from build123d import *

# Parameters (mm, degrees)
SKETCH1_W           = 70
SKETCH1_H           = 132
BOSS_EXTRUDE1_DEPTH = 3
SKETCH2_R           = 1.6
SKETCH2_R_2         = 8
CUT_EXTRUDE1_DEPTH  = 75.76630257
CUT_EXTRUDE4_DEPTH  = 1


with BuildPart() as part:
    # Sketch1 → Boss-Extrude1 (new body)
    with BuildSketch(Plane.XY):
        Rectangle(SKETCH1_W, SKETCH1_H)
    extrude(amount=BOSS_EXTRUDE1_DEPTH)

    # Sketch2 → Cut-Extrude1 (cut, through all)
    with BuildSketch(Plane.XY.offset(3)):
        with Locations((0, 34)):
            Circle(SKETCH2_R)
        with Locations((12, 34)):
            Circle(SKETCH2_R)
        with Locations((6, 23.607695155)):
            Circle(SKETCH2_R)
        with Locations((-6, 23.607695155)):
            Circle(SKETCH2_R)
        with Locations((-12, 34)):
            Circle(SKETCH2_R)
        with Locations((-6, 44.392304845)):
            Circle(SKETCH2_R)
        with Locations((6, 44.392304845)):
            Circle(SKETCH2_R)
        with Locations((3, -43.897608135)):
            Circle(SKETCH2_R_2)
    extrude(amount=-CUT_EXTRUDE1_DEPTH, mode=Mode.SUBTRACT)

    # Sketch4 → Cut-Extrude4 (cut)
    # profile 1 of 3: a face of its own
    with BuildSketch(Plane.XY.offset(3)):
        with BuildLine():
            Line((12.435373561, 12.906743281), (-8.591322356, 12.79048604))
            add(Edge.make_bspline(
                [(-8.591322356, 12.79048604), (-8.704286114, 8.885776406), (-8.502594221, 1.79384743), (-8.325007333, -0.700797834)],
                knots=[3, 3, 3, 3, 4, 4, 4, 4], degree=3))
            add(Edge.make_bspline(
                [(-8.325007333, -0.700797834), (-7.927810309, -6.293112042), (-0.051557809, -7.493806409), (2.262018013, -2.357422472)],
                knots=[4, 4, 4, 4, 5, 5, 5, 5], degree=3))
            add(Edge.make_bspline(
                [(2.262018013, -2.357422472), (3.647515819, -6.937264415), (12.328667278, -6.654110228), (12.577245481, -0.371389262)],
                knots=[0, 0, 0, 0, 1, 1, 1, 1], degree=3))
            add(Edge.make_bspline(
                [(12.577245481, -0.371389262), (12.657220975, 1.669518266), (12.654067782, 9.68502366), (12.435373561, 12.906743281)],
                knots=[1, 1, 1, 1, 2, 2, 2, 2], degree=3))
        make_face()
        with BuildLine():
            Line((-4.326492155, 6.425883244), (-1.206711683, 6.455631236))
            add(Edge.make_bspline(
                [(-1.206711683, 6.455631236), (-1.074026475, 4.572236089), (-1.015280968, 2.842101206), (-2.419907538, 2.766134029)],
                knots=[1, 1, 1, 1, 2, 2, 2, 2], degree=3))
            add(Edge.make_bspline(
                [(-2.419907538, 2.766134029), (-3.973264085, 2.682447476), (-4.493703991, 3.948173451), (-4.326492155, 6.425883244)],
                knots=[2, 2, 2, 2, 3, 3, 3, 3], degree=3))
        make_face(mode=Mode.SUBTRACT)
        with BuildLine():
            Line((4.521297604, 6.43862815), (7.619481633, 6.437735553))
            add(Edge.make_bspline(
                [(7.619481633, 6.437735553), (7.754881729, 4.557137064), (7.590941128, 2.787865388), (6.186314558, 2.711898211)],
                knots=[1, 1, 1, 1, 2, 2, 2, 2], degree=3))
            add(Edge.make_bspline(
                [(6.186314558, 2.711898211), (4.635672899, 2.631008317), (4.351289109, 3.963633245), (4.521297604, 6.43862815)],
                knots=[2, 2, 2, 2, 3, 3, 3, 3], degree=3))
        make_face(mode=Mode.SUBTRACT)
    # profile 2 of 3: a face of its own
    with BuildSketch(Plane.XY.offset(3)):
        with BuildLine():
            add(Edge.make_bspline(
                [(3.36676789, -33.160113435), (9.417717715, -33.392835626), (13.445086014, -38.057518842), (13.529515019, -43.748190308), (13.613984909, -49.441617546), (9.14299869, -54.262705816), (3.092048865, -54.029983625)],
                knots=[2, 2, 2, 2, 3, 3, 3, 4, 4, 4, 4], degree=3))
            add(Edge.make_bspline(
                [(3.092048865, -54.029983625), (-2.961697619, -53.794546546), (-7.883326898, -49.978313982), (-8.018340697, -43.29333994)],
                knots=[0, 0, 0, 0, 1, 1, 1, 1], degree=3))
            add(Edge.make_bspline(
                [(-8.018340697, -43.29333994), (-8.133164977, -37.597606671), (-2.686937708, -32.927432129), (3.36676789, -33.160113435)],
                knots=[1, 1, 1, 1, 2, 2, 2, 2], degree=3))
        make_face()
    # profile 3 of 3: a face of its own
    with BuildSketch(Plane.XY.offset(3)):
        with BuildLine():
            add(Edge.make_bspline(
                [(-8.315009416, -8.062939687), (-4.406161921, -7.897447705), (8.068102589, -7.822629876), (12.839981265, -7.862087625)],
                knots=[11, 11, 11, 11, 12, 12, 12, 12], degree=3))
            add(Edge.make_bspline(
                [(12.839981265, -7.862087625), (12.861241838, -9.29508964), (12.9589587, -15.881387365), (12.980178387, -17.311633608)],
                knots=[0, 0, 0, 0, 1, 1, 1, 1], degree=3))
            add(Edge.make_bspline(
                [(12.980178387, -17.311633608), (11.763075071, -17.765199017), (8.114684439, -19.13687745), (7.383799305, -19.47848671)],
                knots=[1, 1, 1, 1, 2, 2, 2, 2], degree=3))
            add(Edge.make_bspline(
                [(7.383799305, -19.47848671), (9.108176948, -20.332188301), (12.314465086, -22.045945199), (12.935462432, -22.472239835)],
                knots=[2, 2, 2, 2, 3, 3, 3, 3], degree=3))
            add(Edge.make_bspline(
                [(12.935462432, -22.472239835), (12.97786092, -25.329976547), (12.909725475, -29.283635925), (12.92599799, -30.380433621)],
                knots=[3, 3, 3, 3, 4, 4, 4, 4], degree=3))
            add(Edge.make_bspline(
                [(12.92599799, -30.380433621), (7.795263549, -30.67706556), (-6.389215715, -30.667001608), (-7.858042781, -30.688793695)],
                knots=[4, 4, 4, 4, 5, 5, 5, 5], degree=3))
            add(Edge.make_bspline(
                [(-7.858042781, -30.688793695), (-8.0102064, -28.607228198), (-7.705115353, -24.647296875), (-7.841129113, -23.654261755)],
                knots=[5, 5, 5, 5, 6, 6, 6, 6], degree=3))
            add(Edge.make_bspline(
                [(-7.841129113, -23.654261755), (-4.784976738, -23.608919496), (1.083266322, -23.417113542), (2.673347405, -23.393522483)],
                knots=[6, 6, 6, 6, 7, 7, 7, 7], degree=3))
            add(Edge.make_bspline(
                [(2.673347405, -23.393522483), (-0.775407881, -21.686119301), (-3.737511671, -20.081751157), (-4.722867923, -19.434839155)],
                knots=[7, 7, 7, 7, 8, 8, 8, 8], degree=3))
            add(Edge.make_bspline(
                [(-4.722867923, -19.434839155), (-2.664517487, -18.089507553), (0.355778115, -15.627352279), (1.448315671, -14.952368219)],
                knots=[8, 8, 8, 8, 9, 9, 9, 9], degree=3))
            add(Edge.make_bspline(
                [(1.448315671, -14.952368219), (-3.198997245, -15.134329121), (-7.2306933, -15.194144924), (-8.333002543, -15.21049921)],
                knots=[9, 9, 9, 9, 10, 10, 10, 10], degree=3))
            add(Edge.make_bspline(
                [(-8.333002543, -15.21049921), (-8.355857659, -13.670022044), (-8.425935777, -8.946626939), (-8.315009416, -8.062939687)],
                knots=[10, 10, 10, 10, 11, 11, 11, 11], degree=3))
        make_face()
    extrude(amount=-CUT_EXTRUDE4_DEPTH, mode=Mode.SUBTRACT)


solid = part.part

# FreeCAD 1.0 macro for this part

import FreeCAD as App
import Part
import Sketcher

V = App.Vector
Q = App.Units.Quantity

doc = App.newDocument("Part")
params = doc.addObject("Spreadsheet::Sheet", "Params")
for row, (alias, value) in enumerate([
    ("sketch1_width", "70 mm"),
    ("sketch1_height", "132 mm"),
    ("pad1_length", "3 mm"),
    ("sketch2_diameter", "16 mm"),
    ("sketch2_diameter2", "3.2 mm"),
    ("pocket2_length", "1 mm"),
], start=1):
    params.set(f"A{row}", alias)
    params.set(f"B{row}", "=" + value)
    params.setAlias(f"B{row}", alias)

body = doc.addObject("PartDesign::Body", "Body")

sketch1 = body.newObject("Sketcher::SketchObject", "Sketch")
sketch1.AttachmentSupport = (doc.getObject("XY_Plane"), [""])
sketch1.MapMode = "FlatFace"
sketch1.addGeometry(Part.LineSegment(V(-35, 66, 0), V(-35, -66, 0)), False)
sketch1.addGeometry(Part.LineSegment(V(-35, -66, 0), V(35, -66, 0)), False)
sketch1.addGeometry(Part.LineSegment(V(35, -66, 0), V(35, 66, 0)), False)
sketch1.addGeometry(Part.LineSegment(V(35, 66, 0), V(-35, 66, 0)), False)
sketch1.addConstraint(Sketcher.Constraint("Coincident", 0, 2, 1, 1))
sketch1.addConstraint(Sketcher.Constraint("Coincident", 1, 2, 2, 1))
sketch1.addConstraint(Sketcher.Constraint("Coincident", 2, 2, 3, 1))
sketch1.addConstraint(Sketcher.Constraint("Coincident", 3, 2, 0, 1))
sketch1.addConstraint(Sketcher.Constraint("Vertical", 0))
sketch1.addConstraint(Sketcher.Constraint("Horizontal", 1))
sketch1.addConstraint(Sketcher.Constraint("Vertical", 2))
sketch1.addConstraint(Sketcher.Constraint("Horizontal", 3))
sketch1.addConstraint(Sketcher.Constraint("Symmetric", 0, 2, 2, 2, -1, 1))
sketch1.addConstraint(Sketcher.Constraint("DistanceX", 1, 1, 1, 2, Q("70 mm")))
sketch1.addConstraint(Sketcher.Constraint("DistanceY", 0, 2, 0, 1, Q("132 mm")))
sketch1.setExpression("Constraints[9]", "Params.sketch1_width")
sketch1.setExpression("Constraints[10]", "Params.sketch1_height")
pad1 = body.newObject("PartDesign::Pad", "Pad")
pad1.Profile = sketch1
pad1.setExpression("Length", "Params.pad1_length")

sketch2 = body.newObject("Sketcher::SketchObject", "Sketch001")
sketch2.AttachmentSupport = (doc.getObject("XY_Plane"), [""])
sketch2.MapMode = "FlatFace"
sketch2.AttachmentOffset = App.Placement(V(0, 0, 3), App.Rotation())
sketch2.addGeometry(Part.Circle(V(0, 34, 0), V(0, 0, 1), 1.6), False)
sketch2.addGeometry(Part.Circle(V(12, 34, 0), V(0, 0, 1), 1.6), False)
sketch2.addGeometry(Part.Circle(V(6, 23.607695, 0), V(0, 0, 1), 1.6), False)
sketch2.addGeometry(Part.Circle(V(-6, 23.607695, 0), V(0, 0, 1), 1.6), False)
sketch2.addGeometry(Part.Circle(V(-12, 34, 0), V(0, 0, 1), 1.6), False)
sketch2.addGeometry(Part.Circle(V(-6, 44.392305, 0), V(0, 0, 1), 1.6), False)
sketch2.addGeometry(Part.Circle(V(6, 44.392305, 0), V(0, 0, 1), 1.6), False)
sketch2.addGeometry(Part.Circle(V(3, -43.897608, 0), V(0, 0, 1), 8), False)
sketch2.addConstraint(Sketcher.Constraint("Equal", 0, 1))
sketch2.addConstraint(Sketcher.Constraint("Equal", 1, 2))
sketch2.addConstraint(Sketcher.Constraint("Equal", 2, 3))
sketch2.addConstraint(Sketcher.Constraint("Equal", 3, 4))
sketch2.addConstraint(Sketcher.Constraint("Equal", 4, 5))
sketch2.addConstraint(Sketcher.Constraint("Equal", 5, 6))
sketch2.addConstraint(Sketcher.Constraint("Symmetric", 2, 3, 3, 3, -2))
sketch2.addConstraint(Sketcher.Constraint("Symmetric", 1, 3, 4, 3, -2))
sketch2.addConstraint(Sketcher.Constraint("Symmetric", 5, 3, 6, 3, -2))
sketch2.addConstraint(Sketcher.Constraint("PointOnObject", 0, 3, -2))
sketch2.addConstraint(Sketcher.Constraint("Horizontal", 0, 3, 1, 3))
sketch2.addConstraint(Sketcher.Constraint("Vertical", 3, 3, 5, 3))
sketch2.addConstraint(Sketcher.Constraint("Diameter", 7, Q("16 mm")))
sketch2.addConstraint(Sketcher.Constraint("Diameter", 0, Q("3.2 mm")))
sketch2.addConstraint(Sketcher.Constraint("DistanceY", -1, 1, 0, 3, Q("34 mm")))
sketch2.addConstraint(Sketcher.Constraint("DistanceX", -1, 1, 1, 3, Q("12 mm")))
sketch2.addConstraint(Sketcher.Constraint("DistanceX", -1, 1, 2, 3, Q("6 mm")))
sketch2.addConstraint(Sketcher.Constraint("DistanceX", -1, 1, 7, 3, Q("3 mm")))
sketch2.addConstraint(Sketcher.Constraint("DistanceY", 7, 3, -1, 1, Q("43.897608 mm")))
sketch2.addConstraint(Sketcher.Constraint("DistanceY", 3, 3, 5, 3, Q("20.78461 mm")))
sketch2.addConstraint(Sketcher.Constraint("DistanceY", -1, 1, 2, 3, Q("23.607695 mm")))
sketch2.setExpression("Constraints[12]", "Params.sketch2_diameter")
sketch2.setExpression("Constraints[13]", "Params.sketch2_diameter2")
pocket1 = body.newObject("PartDesign::Pocket", "Pocket")
pocket1.Profile = sketch2
pocket1.Type = "ThroughAll"

sketch3 = body.newObject("Sketcher::SketchObject", "Sketch002")
sketch3.AttachmentSupport = (doc.getObject("XY_Plane"), [""])
sketch3.MapMode = "FlatFace"
sketch3.AttachmentOffset = App.Placement(V(0, 0, 3), App.Rotation())
sketch3.addGeometry(Part.LineSegment(V(12.435374, 12.906743, 0), V(-8.591322, 12.790486, 0)), False)
sketch3.addGeometry(Part.BSplineCurve([V(-8.591322, 12.790486, 0), V(-8.704286, 8.885776, 0), V(-8.502594, 1.793847, 0), V(-8.325007, -0.700798, 0)], [4, 4], [3, 4], False, 3, [1, 1, 1, 1], False), False)
sketch3.addGeometry(Part.BSplineCurve([V(-8.325007, -0.700798, 0), V(-7.92781, -6.293112, 0), V(-0.051558, -7.493806, 0), V(2.262018, -2.357422, 0)], [4, 4], [4, 5], False, 3, [1, 1, 1, 1], False), False)
sketch3.addGeometry(Part.BSplineCurve([V(2.262018, -2.357422, 0), V(3.647516, -6.937264, 0), V(12.328667, -6.65411, 0), V(12.577245, -0.371389, 0)], [4, 4], [0, 1], False, 3, [1, 1, 1, 1], False), False)
sketch3.addGeometry(Part.BSplineCurve([V(12.577245, -0.371389, 0), V(12.657221, 1.669518, 0), V(12.654068, 9.685024, 0), V(12.435374, 12.906743, 0)], [4, 4], [1, 2], False, 3, [1, 1, 1, 1], False), False)
sketch3.addGeometry(Part.BSplineCurve([V(6.186315, 2.711898, 0), V(4.635673, 2.631008, 0), V(4.351289, 3.963633, 0), V(4.521298, 6.438628, 0)], [4, 4], [2, 3], False, 3, [1, 1, 1, 1], False), False)
sketch3.addGeometry(Part.LineSegment(V(4.521298, 6.438628, 0), V(7.619482, 6.437736, 0)), False)
sketch3.addGeometry(Part.BSplineCurve([V(7.619482, 6.437736, 0), V(7.754882, 4.557137, 0), V(7.590941, 2.787865, 0), V(6.186315, 2.711898, 0)], [4, 4], [1, 2], False, 3, [1, 1, 1, 1], False), False)
sketch3.addGeometry(Part.BSplineCurve([V(-2.419908, 2.766134, 0), V(-3.973264, 2.682447, 0), V(-4.493704, 3.948173, 0), V(-4.326492, 6.425883, 0)], [4, 4], [2, 3], False, 3, [1, 1, 1, 1], False), False)
sketch3.addGeometry(Part.LineSegment(V(-4.326492, 6.425883, 0), V(-1.206712, 6.455631, 0)), False)
sketch3.addGeometry(Part.BSplineCurve([V(-1.206712, 6.455631, 0), V(-1.074026, 4.572236, 0), V(-1.015281, 2.842101, 0), V(-2.419908, 2.766134, 0)], [4, 4], [1, 2], False, 3, [1, 1, 1, 1], False), False)
sketch3.addGeometry(Part.BSplineCurve([V(3.366768, -33.160113, 0), V(9.417718, -33.392836, 0), V(13.445086, -38.057519, 0), V(13.529515, -43.74819, 0), V(13.613985, -49.441618, 0), V(9.142999, -54.262706, 0), V(3.092049, -54.029984, 0)], [4, 3, 4], [2, 3, 4], False, 3, [1, 1, 1, 1, 1, 1, 1], False), False)
sketch3.addGeometry(Part.BSplineCurve([V(-8.018341, -43.29334, 0), V(-8.133165, -37.597607, 0), V(-2.686938, -32.927432, 0), V(3.366768, -33.160113, 0)], [4, 4], [1, 2], False, 3, [1, 1, 1, 1], False), False)
sketch3.addGeometry(Part.BSplineCurve([V(3.092049, -54.029984, 0), V(-2.961698, -53.794547, 0), V(-7.883327, -49.978314, 0), V(-8.018341, -43.29334, 0)], [4, 4], [0, 1], False, 3, [1, 1, 1, 1], False), False)
sketch3.addGeometry(Part.BSplineCurve([V(-8.315009, -8.06294, 0), V(-4.406162, -7.897448, 0), V(8.068103, -7.82263, 0), V(12.839981, -7.862088, 0)], [4, 4], [11, 12], False, 3, [1, 1, 1, 1], False), False)
sketch3.addGeometry(Part.BSplineCurve([V(-8.333003, -15.210499, 0), V(-8.355858, -13.670022, 0), V(-8.425936, -8.946627, 0), V(-8.315009, -8.06294, 0)], [4, 4], [10, 11], False, 3, [1, 1, 1, 1], False), False)
sketch3.addGeometry(Part.BSplineCurve([V(1.448316, -14.952368, 0), V(-3.198997, -15.134329, 0), V(-7.230693, -15.194145, 0), V(-8.333003, -15.210499, 0)], [4, 4], [9, 10], False, 3, [1, 1, 1, 1], False), False)
sketch3.addGeometry(Part.BSplineCurve([V(-4.722868, -19.434839, 0), V(-2.664517, -18.089508, 0), V(0.355778, -15.627352, 0), V(1.448316, -14.952368, 0)], [4, 4], [8, 9], False, 3, [1, 1, 1, 1], False), False)
sketch3.addGeometry(Part.BSplineCurve([V(2.673347, -23.393522, 0), V(-0.775408, -21.686119, 0), V(-3.737512, -20.081751, 0), V(-4.722868, -19.434839, 0)], [4, 4], [7, 8], False, 3, [1, 1, 1, 1], False), False)
sketch3.addGeometry(Part.BSplineCurve([V(-7.841129, -23.654262, 0), V(-4.784977, -23.608919, 0), V(1.083266, -23.417114, 0), V(2.673347, -23.393522, 0)], [4, 4], [6, 7], False, 3, [1, 1, 1, 1], False), False)
sketch3.addGeometry(Part.BSplineCurve([V(-7.858043, -30.688794, 0), V(-8.010206, -28.607228, 0), V(-7.705115, -24.647297, 0), V(-7.841129, -23.654262, 0)], [4, 4], [5, 6], False, 3, [1, 1, 1, 1], False), False)
sketch3.addGeometry(Part.BSplineCurve([V(12.925998, -30.380434, 0), V(7.795264, -30.677066, 0), V(-6.389216, -30.667002, 0), V(-7.858043, -30.688794, 0)], [4, 4], [4, 5], False, 3, [1, 1, 1, 1], False), False)
sketch3.addGeometry(Part.BSplineCurve([V(12.935462, -22.47224, 0), V(12.977861, -25.329977, 0), V(12.909725, -29.283636, 0), V(12.925998, -30.380434, 0)], [4, 4], [3, 4], False, 3, [1, 1, 1, 1], False), False)
sketch3.addGeometry(Part.BSplineCurve([V(7.383799, -19.478487, 0), V(9.108177, -20.332188, 0), V(12.314465, -22.045945, 0), V(12.935462, -22.47224, 0)], [4, 4], [2, 3], False, 3, [1, 1, 1, 1], False), False)
sketch3.addGeometry(Part.BSplineCurve([V(12.980178, -17.311634, 0), V(11.763075, -17.765199, 0), V(8.114684, -19.136877, 0), V(7.383799, -19.478487, 0)], [4, 4], [1, 2], False, 3, [1, 1, 1, 1], False), False)
sketch3.addGeometry(Part.BSplineCurve([V(12.839981, -7.862088, 0), V(12.861242, -9.29509, 0), V(12.958959, -15.881387, 0), V(12.980178, -17.311634, 0)], [4, 4], [0, 1], False, 3, [1, 1, 1, 1], False), False)
sketch3.addConstraint(Sketcher.Constraint("Block", 1))
sketch3.addConstraint(Sketcher.Constraint("Block", 2))
sketch3.addConstraint(Sketcher.Constraint("Block", 3))
sketch3.addConstraint(Sketcher.Constraint("Block", 4))
sketch3.addConstraint(Sketcher.Constraint("Block", 5))
sketch3.addConstraint(Sketcher.Constraint("Block", 7))
sketch3.addConstraint(Sketcher.Constraint("Block", 8))
sketch3.addConstraint(Sketcher.Constraint("Block", 10))
sketch3.addConstraint(Sketcher.Constraint("Block", 11))
sketch3.addConstraint(Sketcher.Constraint("Block", 12))
sketch3.addConstraint(Sketcher.Constraint("Block", 13))
sketch3.addConstraint(Sketcher.Constraint("Block", 14))
sketch3.addConstraint(Sketcher.Constraint("Block", 15))
sketch3.addConstraint(Sketcher.Constraint("Block", 16))
sketch3.addConstraint(Sketcher.Constraint("Block", 17))
sketch3.addConstraint(Sketcher.Constraint("Block", 18))
sketch3.addConstraint(Sketcher.Constraint("Block", 19))
sketch3.addConstraint(Sketcher.Constraint("Block", 20))
sketch3.addConstraint(Sketcher.Constraint("Block", 21))
sketch3.addConstraint(Sketcher.Constraint("Block", 22))
sketch3.addConstraint(Sketcher.Constraint("Block", 23))
sketch3.addConstraint(Sketcher.Constraint("Block", 24))
sketch3.addConstraint(Sketcher.Constraint("Block", 25))
sketch3.addConstraint(Sketcher.Constraint("Coincident", 0, 2, 1, 1))
sketch3.addConstraint(Sketcher.Constraint("Coincident", 4, 2, 0, 1))
sketch3.addConstraint(Sketcher.Constraint("Coincident", 5, 2, 6, 1))
sketch3.addConstraint(Sketcher.Constraint("Coincident", 6, 2, 7, 1))
sketch3.addConstraint(Sketcher.Constraint("Coincident", 8, 2, 9, 1))
sketch3.addConstraint(Sketcher.Constraint("Coincident", 9, 2, 10, 1))
pocket2 = body.newObject("PartDesign::Pocket", "Pocket001")
pocket2.Profile = sketch3
pocket2.setExpression("Length", "Params.pocket2_length")

doc.recompute()
